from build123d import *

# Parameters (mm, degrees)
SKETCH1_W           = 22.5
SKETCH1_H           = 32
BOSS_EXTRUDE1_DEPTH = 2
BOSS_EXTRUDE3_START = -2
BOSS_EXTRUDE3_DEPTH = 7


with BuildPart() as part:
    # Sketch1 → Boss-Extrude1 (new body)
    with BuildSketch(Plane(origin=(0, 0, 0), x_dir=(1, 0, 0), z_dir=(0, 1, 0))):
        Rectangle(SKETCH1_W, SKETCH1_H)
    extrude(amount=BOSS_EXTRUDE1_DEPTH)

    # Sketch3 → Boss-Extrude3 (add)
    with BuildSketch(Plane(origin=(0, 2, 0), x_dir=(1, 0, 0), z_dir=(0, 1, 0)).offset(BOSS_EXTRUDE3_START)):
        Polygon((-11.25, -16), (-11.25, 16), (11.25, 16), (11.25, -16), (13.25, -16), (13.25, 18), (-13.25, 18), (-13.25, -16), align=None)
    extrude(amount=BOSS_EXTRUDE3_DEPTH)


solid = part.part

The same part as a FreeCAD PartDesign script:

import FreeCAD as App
import Part
import Sketcher
from FreeCAD import Vector

doc = App.newDocument("Part")
params = doc.addObject("Spreadsheet::Sheet", "Params")
for row, (alias, value) in enumerate([
    ("sketch1_height", "32 mm"),
    ("sketch1_width", "22.5 mm"),
    ("pad1_length", "2 mm"),
    ("sketch2_width", "2 mm"),
    ("sketch2_height", "32 mm"),
    ("sketch2_height2", "34 mm"),
    ("sketch2_width2", "22.5 mm"),
    ("pad2_length", "7 mm"),
], start=1):
    params.set(f"A{row}", alias)
    params.set(f"B{row}", "=" + value)
    params.setAlias(f"B{row}", alias)

body = doc.addObject("PartDesign::Body", "Body")

sketch1 = doc.addObject("Sketcher::SketchObject", "Sketch")
body.addObject(sketch1)
sketch1.AttachmentSupport = (doc.XZ_Plane, [""])
sketch1.MapMode = "FlatFace"
sketch1.addGeometry([
    Part.LineSegment(Vector(-11.25, -16, 0), Vector(-11.25, 16, 0)),
    Part.LineSegment(Vector(-11.25, 16, 0), Vector(11.25, 16, 0)),
    Part.LineSegment(Vector(11.25, 16, 0), Vector(11.25, -16, 0)),
    Part.LineSegment(Vector(11.25, -16, 0), Vector(-11.25, -16, 0)),
], False)
sketch1.addConstraint([
    Sketcher.Constraint("Coincident", 0, 2, 1, 1),
    Sketcher.Constraint("Coincident", 1, 2, 2, 1),
    Sketcher.Constraint("Coincident", 2, 2, 3, 1),
    Sketcher.Constraint("Coincident", 3, 2, 0, 1),
    Sketcher.Constraint("Vertical", 0),
    Sketcher.Constraint("Horizontal", 1),
    Sketcher.Constraint("Vertical", 2),
    Sketcher.Constraint("Horizontal", 3),
    Sketcher.Constraint("Symmetric", 0, 2, 2, 2, -1, 1),
    Sketcher.Constraint("DistanceY", 0, 1, 0, 2, 32.0),
    Sketcher.Constraint("DistanceX", 1, 1, 1, 2, 22.5),
])
sketch1.setExpression("Constraints[9]", "Params.sketch1_height")
sketch1.setExpression("Constraints[10]", "Params.sketch1_width")
pad1 = doc.addObject("PartDesign::Pad", "Pad")
body.addObject(pad1)
pad1.Profile = sketch1
pad1.setExpression("Length", "Params.pad1_length")
pad1.Reversed = True

sketch2 = doc.addObject("Sketcher::SketchObject", "Sketch001")
body.addObject(sketch2)
sketch2.AttachmentSupport = (doc.XZ_Plane, [""])
sketch2.MapMode = "FlatFace"
sketch2.addGeometry([
    Part.LineSegment(Vector(-11.25, 16, 0), Vector(-11.25, -16, 0)),
    Part.LineSegment(Vector(-11.25, -16, 0), Vector(11.25, -16, 0)),
    Part.LineSegment(Vector(11.25, -16, 0), Vector(11.25, 16, 0)),
    Part.LineSegment(Vector(11.25, 16, 0), Vector(13.25, 16, 0)),
    Part.LineSegment(Vector(13.25, 16, 0), Vector(13.25, -18, 0)),
    Part.LineSegment(Vector(13.25, -18, 0), Vector(-13.25, -18, 0)),
    Part.LineSegment(Vector(-13.25, -18, 0), Vector(-13.25, 16, 0)),
    Part.LineSegment(Vector(-13.25, 16, 0), Vector(-11.25, 16, 0)),
], False)
sketch2.addConstraint([
    Sketcher.Constraint("Coincident", 0, 2, 1, 1),
    Sketcher.Constraint("Coincident", 1, 2, 2, 1),
    Sketcher.Constraint("Coincident", 2, 2, 3, 1),
    Sketcher.Constraint("Coincident", 3, 2, 4, 1),
    Sketcher.Constraint("Coincident", 4, 2, 5, 1),
    Sketcher.Constraint("Coincident", 5, 2, 6, 1),
    Sketcher.Constraint("Coincident", 6, 2, 7, 1),
    Sketcher.Constraint("Coincident", 7, 2, 0, 1),
    Sketcher.Constraint("Vertical", 0),
    Sketcher.Constraint("Horizontal", 1),
    Sketcher.Constraint("Vertical", 2),
    Sketcher.Constraint("Horizontal", 3),
    Sketcher.Constraint("Vertical", 4),
    Sketcher.Constraint("Horizontal", 5),
    Sketcher.Constraint("Vertical", 6),
    Sketcher.Constraint("Horizontal", 7),
    Sketcher.Constraint("Symmetric", 0, 2, 2, 2, -1, 1),
    Sketcher.Constraint("Symmetric", 3, 2, 6, 2, -2),
    Sketcher.Constraint("DistanceX", 3, 1, 3, 2, 2.0),
    Sketcher.Constraint("DistanceY", 0, 2, 0, 1, 32.0),
    Sketcher.Constraint("DistanceY", 4, 2, 4, 1, 34.0),
    Sketcher.Constraint("DistanceX", 1, 1, 1, 2, 22.5),
])
sketch2.setExpression("Constraints[18]", "Params.sketch2_width")
sketch2.setExpression("Constraints[19]", "Params.sketch2_height")
sketch2.setExpression("Constraints[20]", "Params.sketch2_height2")
sketch2.setExpression("Constraints[21]", "Params.sketch2_width2")
pad2 = doc.addObject("PartDesign::Pad", "Pad001")
body.addObject(pad2)
pad2.Profile = sketch2
pad2.setExpression("Length", "Params.pad2_length")
pad2.Reversed = True

doc.recompute()
